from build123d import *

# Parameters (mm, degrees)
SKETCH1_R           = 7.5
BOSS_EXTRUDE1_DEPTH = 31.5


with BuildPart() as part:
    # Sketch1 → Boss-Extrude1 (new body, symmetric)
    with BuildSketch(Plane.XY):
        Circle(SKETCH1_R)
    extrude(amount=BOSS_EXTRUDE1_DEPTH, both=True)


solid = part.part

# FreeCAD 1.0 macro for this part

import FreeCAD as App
import Part
import Sketcher
Q = App.Units.Quantity

doc = App.newDocument("Part")
params = doc.addObject("Spreadsheet::Sheet", "Params")
for row, (alias, value) in enumerate([
    ("sketch1_diameter", "15 mm"),
    ("pad1_length", "63 mm"),
], start=1):
    params.set(f"A{row}", alias)
    params.set(f"B{row}", "=" + value)
    params.setAlias(f"B{row}", alias)

body = doc.addObject("PartDesign::Body", "Body")

# Sketch on XY plane
sketch1 = doc.addObject("Sketcher::SketchObject", "Sketch")
body.addObject(sketch1)
sketch1.AttachmentSupport = (doc.XY_Plane, [""])
sketch1.MapMode = "FlatFace"
sketch1.addGeometry(Part.Circle(App.Vector(0, 0, 0), App.Vector(0, 0, 1), 8), False)
sketch1.addConstraint([
    Sketcher.Constraint("Coincident", 0, 3, -1, 1),
    Sketcher.Constraint("Diameter", 0, Q("15 mm")),
])
sketch1.setExpression("Constraints[1]", "Params.sketch1_diameter")
pad1 = doc.addObject("PartDesign::Pad", "Pad")
body.addObject(pad1)
pad1.Profile = sketch1
pad1.setExpression("Length", "Params.pad1_length")
pad1.Midplane = True

doc.recompute()
